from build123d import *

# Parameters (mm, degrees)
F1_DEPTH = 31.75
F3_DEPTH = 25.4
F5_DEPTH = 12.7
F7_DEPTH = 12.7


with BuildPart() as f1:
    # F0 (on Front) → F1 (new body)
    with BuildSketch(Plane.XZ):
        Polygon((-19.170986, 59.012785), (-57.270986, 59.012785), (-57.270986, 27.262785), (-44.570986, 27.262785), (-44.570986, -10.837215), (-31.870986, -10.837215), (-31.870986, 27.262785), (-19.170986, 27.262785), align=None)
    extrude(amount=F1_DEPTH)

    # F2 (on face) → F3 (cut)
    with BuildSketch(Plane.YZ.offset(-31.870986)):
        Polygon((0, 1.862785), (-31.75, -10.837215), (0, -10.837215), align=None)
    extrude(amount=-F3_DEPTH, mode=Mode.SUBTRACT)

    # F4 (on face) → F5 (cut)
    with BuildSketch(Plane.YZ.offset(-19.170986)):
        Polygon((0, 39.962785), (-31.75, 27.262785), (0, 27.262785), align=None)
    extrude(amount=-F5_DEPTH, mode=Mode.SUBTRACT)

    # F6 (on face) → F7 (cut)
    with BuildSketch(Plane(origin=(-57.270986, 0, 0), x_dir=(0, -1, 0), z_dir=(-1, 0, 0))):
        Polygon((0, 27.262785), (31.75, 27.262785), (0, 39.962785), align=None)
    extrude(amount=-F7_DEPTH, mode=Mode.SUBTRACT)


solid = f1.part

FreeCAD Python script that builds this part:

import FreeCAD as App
import Part
import Sketcher

V = App.Vector
Q = App.Units.Quantity

doc = App.newDocument("Part")
body = doc.addObject("PartDesign::Body", "Body")

sketch1 = body.newObject("Sketcher::SketchObject", "Sketch")
sketch1.AttachmentSupport = (doc.getObject("XZ_Plane"), [""])
sketch1.MapMode = "FlatFace"
sketch1.addGeometry([
    Part.LineSegment(V(-19, 59, 0), V(-57, 59, 0)),
    Part.LineSegment(V(-57, 59, 0), V(-57, 27, 0)),
    Part.LineSegment(V(-57, 27, 0), V(-45, 27, 0)),
    Part.LineSegment(V(-45, 27, 0), V(-45, -11, 0)),
    Part.LineSegment(V(-45, -11, 0), V(-32, -11, 0)),
    Part.LineSegment(V(-32, -11, 0), V(-32, 27, 0)),
    Part.LineSegment(V(-32, 27, 0), V(-19, 27, 0)),
    Part.LineSegment(V(-19, 27, 0), V(-19, 59, 0)),
], False)
sketch1.addConstraint([
    Sketcher.Constraint("Coincident", 0, 2, 1, 1),
    Sketcher.Constraint("Coincident", 1, 2, 2, 1),
    Sketcher.Constraint("Coincident", 2, 2, 3, 1),
    Sketcher.Constraint("Coincident", 3, 2, 4, 1),
    Sketcher.Constraint("Coincident", 4, 2, 5, 1),
    Sketcher.Constraint("Coincident", 5, 2, 6, 1),
    Sketcher.Constraint("Coincident", 6, 2, 7, 1),
    Sketcher.Constraint("Coincident", 7, 2, 0, 1),
    Sketcher.Constraint("Horizontal", 0),
    Sketcher.Constraint("Vertical", 1),
    Sketcher.Constraint("Horizontal", 2),
    Sketcher.Constraint("Vertical", 3),
    Sketcher.Constraint("Horizontal", 4),
    Sketcher.Constraint("Vertical", 5),
    Sketcher.Constraint("Horizontal", 6),
    Sketcher.Constraint("Vertical", 7),
    Sketcher.Constraint("Horizontal", 2, 2, 5, 2),
    Sketcher.Constraint("Equal", 2, 4),
    Sketcher.Constraint("Equal", 4, 6),
    Sketcher.Constraint("Equal", 0, 3),
    Sketcher.Constraint("DistanceX", 0, 2, 0, 1, Q("1.5 in")),
    Sketcher.Constraint("DistanceY", 1, 2, 1, 1, Q("1.25 in")),
    Sketcher.Constraint("DistanceX", 0, 2, -1, 1, 57.270986),
    Sketcher.Constraint("DistanceY", -1, 1, 0, 2, 59.012785),
])
pad1 = body.newObject("PartDesign::Pad", "Pad")
pad1.Profile = sketch1
pad1.Length = Q("1.25 in")

sketch2 = body.newObject("Sketcher::SketchObject", "Sketch001")
sketch2.AttachmentSupport = (doc.getObject("YZ_Plane"), [""])
sketch2.MapMode = "FlatFace"
sketch2.AttachmentOffset = App.Placement(V(0, 0, -31.870986), App.Rotation())
sketch2.addGeometry([
    Part.LineSegment(V(0, 2, 0), V(-32, -11, 0)),
    Part.LineSegment(V(-32, -11, 0), V(0, -11, 0)),
    Part.LineSegment(V(0, -11, 0), V(0, 2, 0)),
], False)
sketch2.addConstraint([
    Sketcher.Constraint("Coincident", 0, 2, 1, 1),
    Sketcher.Constraint("Coincident", 1, 2, 2, 1),
    Sketcher.Constraint("Coincident", 2, 2, 0, 1),
    Sketcher.Constraint("Horizontal", 1),
    Sketcher.Constraint("Vertical", 2),
    Sketcher.Constraint("PointOnObject", 1, 2, -2),
    Sketcher.Constraint("DistanceY", 2, 1, 2, 2, Q("0.5 in")),
    Sketcher.Constraint("DistanceX", 1, 1, 1, 2, Q("1.25 in")),
    Sketcher.Constraint("DistanceY", 0, 2, -1, 1, 10.837215),
])
pocket1 = body.newObject("PartDesign::Pocket", "Pocket")
pocket1.Profile = sketch2
pocket1.Length = Q("1 in")

sketch3 = body.newObject("Sketcher::SketchObject", "Sketch002")
sketch3.AttachmentSupport = (doc.getObject("YZ_Plane"), [""])
sketch3.MapMode = "FlatFace"
sketch3.AttachmentOffset = App.Placement(V(0, 0, -19.170986), App.Rotation())
sketch3.addGeometry([
    Part.LineSegment(V(0, 40, 0), V(-32, 27, 0)),
    Part.LineSegment(V(-32, 27, 0), V(0, 27, 0)),
    Part.LineSegment(V(0, 27, 0), V(0, 40, 0)),
], False)
sketch3.addConstraint([
    Sketcher.Constraint("Coincident", 0, 2, 1, 1),
    Sketcher.Constraint("Coincident", 1, 2, 2, 1),
    Sketcher.Constraint("Coincident", 2, 2, 0, 1),
    Sketcher.Constraint("Horizontal", 1),
    Sketcher.Constraint("Vertical", 2),
    Sketcher.Constraint("PointOnObject", 1, 2, -2),
    Sketcher.Constraint("DistanceY", 2, 1, 2, 2, Q("0.5 in")),
    Sketcher.Constraint("DistanceX", 1, 1, 1, 2, Q("1.25 in")),
    Sketcher.Constraint("DistanceY", -1, 1, 0, 2, 27.262785),
])
pocket2 = body.newObject("PartDesign::Pocket", "Pocket001")
pocket2.Profile = sketch3
pocket2.Length = Q("0.5 in")

sketch4 = body.newObject("Sketcher::SketchObject", "Sketch003")
sketch4.AttachmentSupport = (doc.getObject("YZ_Plane"), [""])
sketch4.MapMode = "FlatFace"
sketch4.AttachmentOffset = App.Placement(V(0, 0, -57.270986), App.Rotation())
sketch4.addGeometry([
    Part.LineSegment(V(0, 27, 0), V(-32, 27, 0)),
    Part.LineSegment(V(-32, 27, 0), V(0, 40, 0)),
    Part.LineSegment(V(0, 40, 0), V(0, 27, 0)),
], False)
sketch4.addConstraint([
    Sketcher.Constraint("Coincident", 0, 2, 1, 1),
    Sketcher.Constraint("Coincident", 1, 2, 2, 1),
    Sketcher.Constraint("Coincident", 2, 2, 0, 1),
    Sketcher.Constraint("Horizontal", 0),
    Sketcher.Constraint("Vertical", 2),
    Sketcher.Constraint("PointOnObject", 1, 2, -2),
    Sketcher.Constraint("DistanceY", 2, 2, 2, 1, Q("0.5 in")),
    Sketcher.Constraint("DistanceX", 0, 2, 0, 1, Q("1.25 in")),
    Sketcher.Constraint("DistanceY", -1, 1, 0, 2, 27.262785),
])
pocket3 = body.newObject("PartDesign::Pocket", "Pocket002")
pocket3.Profile = sketch4
pocket3.Length = Q("0.5 in")
pocket3.Reversed = True

doc.recompute()
